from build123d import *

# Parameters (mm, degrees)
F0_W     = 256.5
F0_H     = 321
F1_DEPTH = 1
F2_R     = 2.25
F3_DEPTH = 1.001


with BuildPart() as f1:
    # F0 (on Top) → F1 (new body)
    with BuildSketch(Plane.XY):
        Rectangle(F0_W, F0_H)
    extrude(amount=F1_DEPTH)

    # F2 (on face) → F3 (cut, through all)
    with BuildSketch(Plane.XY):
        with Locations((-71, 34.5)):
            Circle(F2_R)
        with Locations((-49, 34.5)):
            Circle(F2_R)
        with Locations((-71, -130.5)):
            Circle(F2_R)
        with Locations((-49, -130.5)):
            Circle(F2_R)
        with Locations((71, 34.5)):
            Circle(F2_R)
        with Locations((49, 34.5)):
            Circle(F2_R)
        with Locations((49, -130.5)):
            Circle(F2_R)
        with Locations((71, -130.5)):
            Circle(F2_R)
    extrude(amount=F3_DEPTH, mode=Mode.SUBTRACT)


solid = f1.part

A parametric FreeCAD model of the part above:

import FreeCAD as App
import Part
import Sketcher

V = App.Vector
Q = App.Units.Quantity


def add_polygon(sketch, points):
    """Adds a closed chain of lines whose ends are joined by coincident constraints."""
    first, n = sketch.GeometryCount, len(points)
    for a, b in zip(points, points[1:] + points[:1]):
        sketch.addGeometry(Part.LineSegment(App.Vector(*a, 0), App.Vector(*b, 0)), False)
    for i in range(n):
        sketch.addConstraint(Sketcher.Constraint("Coincident", first + i, 2, first + (i + 1) % n, 1))

doc = App.newDocument("Part")
params = doc.addObject("Spreadsheet::Sheet", "Params")
for row, (alias, value) in enumerate([
    ("sketch1_height", "321 mm"),
    ("sketch1_width", "256.5 mm"),
    ("pad1_length", "1 mm"),
    ("sketch2_diameter", "4.5 mm"),
], start=1):
    params.set(f"A{row}", alias)
    params.set(f"B{row}", "=" + value)
    params.setAlias(f"B{row}", alias)

body = doc.addObject("PartDesign::Body", "Body")

# Sketch on XY plane
sketch1 = body.newObject("Sketcher::SketchObject", "Sketch")
sketch1.AttachmentSupport = (doc.getObject("XY_Plane"), [""])
sketch1.MapMode = "FlatFace"
add_polygon(sketch1, [(-128.25, 160.5), (-128.25, -160.5), (128.25, -160.5), (128.25, 160.5)])  # lines 0-3
sketch1.addConstraint([
    Sketcher.Constraint("Vertical", 0),
    Sketcher.Constraint("Horizontal", 1),
    Sketcher.Constraint("Vertical", 2),
    Sketcher.Constraint("Horizontal", 3),
    Sketcher.Constraint("Symmetric", 0, 2, 2, 2, -1, 1),
    Sketcher.Constraint("DistanceY", 0, 2, 0, 1, Q("321 mm")),
    Sketcher.Constraint("DistanceX", 1, 1, 1, 2, Q("256.5 mm")),
])
sketch1.setExpression("Constraints[9]", "Params.sketch1_height")
sketch1.setExpression("Constraints[10]", "Params.sketch1_width")
pad1 = body.newObject("PartDesign::Pad", "Pad")
pad1.Profile = sketch1
pad1.setExpression("Length", "Params.pad1_length")

# Sketch on XY plane
sketch2 = body.newObject("Sketcher::SketchObject", "Sketch001")
sketch2.AttachmentSupport = (doc.getObject("XY_Plane"), [""])
sketch2.MapMode = "FlatFace"
sketch2.addGeometry([
    Part.Circle(V(-71, 34.5, 0), V(0, 0, 1), 2.25),  # 0
    Part.Circle(V(-49, 34.5, 0), V(0, 0, 1), 2.25),  # 1
    Part.Circle(V(-71, -130.5, 0), V(0, 0, 1), 2.25),  # 2
    Part.Circle(V(-49, -130.5, 0), V(0, 0, 1), 2.25),  # 3
    Part.Circle(V(71, 34.5, 0), V(0, 0, 1), 2.25),  # 4
    Part.Circle(V(49, 34.5, 0), V(0, 0, 1), 2.25),  # 5
    Part.Circle(V(49, -130.5, 0), V(0, 0, 1), 2.25),  # 6
    Part.Circle(V(71, -130.5, 0), V(0, 0, 1), 2.25),  # 7
], False)
sketch2.addConstraint([
    Sketcher.Constraint("Equal", 0, 1),
    Sketcher.Constraint("Equal", 1, 2),
    Sketcher.Constraint("Equal", 2, 3),
    Sketcher.Constraint("Equal", 3, 4),
    Sketcher.Constraint("Equal", 4, 5),
    Sketcher.Constraint("Equal", 5, 6),
    Sketcher.Constraint("Equal", 6, 7),
    Sketcher.Constraint("Symmetric", 0, 3, 4, 3, -2),
    Sketcher.Constraint("Symmetric", 1, 3, 5, 3, -2),
    Sketcher.Constraint("Symmetric", 3, 3, 6, 3, -2),
    Sketcher.Constraint("Symmetric", 2, 3, 7, 3, -2),
    Sketcher.Constraint("Horizontal", 0, 3, 1, 3),
    Sketcher.Constraint("Horizontal", 2, 3, 3, 3),
    Sketcher.Constraint("Vertical", 0, 3, 2, 3),
    Sketcher.Constraint("Vertical", 1, 3, 3, 3),
    Sketcher.Constraint("Diameter", 0, Q("4.5 mm")),
    Sketcher.Constraint("DistanceX", 0, 3, -1, 1, Q("71 mm")),
    Sketcher.Constraint("DistanceX", 1, 3, -1, 1, Q("49 mm")),
    Sketcher.Constraint("DistanceY", 2, 3, 0, 3, Q("165 mm")),
    Sketcher.Constraint("DistanceY", -1, 1, 0, 3, Q("34.5 mm")),
])
sketch2.setExpression("Constraints[15]", "Params.sketch2_diameter")
pocket1 = body.newObject("PartDesign::Pocket", "Pocket")
pocket1.Profile = sketch2
pocket1.Type = "ThroughAll"
pocket1.Reversed = True

doc.recompute()
